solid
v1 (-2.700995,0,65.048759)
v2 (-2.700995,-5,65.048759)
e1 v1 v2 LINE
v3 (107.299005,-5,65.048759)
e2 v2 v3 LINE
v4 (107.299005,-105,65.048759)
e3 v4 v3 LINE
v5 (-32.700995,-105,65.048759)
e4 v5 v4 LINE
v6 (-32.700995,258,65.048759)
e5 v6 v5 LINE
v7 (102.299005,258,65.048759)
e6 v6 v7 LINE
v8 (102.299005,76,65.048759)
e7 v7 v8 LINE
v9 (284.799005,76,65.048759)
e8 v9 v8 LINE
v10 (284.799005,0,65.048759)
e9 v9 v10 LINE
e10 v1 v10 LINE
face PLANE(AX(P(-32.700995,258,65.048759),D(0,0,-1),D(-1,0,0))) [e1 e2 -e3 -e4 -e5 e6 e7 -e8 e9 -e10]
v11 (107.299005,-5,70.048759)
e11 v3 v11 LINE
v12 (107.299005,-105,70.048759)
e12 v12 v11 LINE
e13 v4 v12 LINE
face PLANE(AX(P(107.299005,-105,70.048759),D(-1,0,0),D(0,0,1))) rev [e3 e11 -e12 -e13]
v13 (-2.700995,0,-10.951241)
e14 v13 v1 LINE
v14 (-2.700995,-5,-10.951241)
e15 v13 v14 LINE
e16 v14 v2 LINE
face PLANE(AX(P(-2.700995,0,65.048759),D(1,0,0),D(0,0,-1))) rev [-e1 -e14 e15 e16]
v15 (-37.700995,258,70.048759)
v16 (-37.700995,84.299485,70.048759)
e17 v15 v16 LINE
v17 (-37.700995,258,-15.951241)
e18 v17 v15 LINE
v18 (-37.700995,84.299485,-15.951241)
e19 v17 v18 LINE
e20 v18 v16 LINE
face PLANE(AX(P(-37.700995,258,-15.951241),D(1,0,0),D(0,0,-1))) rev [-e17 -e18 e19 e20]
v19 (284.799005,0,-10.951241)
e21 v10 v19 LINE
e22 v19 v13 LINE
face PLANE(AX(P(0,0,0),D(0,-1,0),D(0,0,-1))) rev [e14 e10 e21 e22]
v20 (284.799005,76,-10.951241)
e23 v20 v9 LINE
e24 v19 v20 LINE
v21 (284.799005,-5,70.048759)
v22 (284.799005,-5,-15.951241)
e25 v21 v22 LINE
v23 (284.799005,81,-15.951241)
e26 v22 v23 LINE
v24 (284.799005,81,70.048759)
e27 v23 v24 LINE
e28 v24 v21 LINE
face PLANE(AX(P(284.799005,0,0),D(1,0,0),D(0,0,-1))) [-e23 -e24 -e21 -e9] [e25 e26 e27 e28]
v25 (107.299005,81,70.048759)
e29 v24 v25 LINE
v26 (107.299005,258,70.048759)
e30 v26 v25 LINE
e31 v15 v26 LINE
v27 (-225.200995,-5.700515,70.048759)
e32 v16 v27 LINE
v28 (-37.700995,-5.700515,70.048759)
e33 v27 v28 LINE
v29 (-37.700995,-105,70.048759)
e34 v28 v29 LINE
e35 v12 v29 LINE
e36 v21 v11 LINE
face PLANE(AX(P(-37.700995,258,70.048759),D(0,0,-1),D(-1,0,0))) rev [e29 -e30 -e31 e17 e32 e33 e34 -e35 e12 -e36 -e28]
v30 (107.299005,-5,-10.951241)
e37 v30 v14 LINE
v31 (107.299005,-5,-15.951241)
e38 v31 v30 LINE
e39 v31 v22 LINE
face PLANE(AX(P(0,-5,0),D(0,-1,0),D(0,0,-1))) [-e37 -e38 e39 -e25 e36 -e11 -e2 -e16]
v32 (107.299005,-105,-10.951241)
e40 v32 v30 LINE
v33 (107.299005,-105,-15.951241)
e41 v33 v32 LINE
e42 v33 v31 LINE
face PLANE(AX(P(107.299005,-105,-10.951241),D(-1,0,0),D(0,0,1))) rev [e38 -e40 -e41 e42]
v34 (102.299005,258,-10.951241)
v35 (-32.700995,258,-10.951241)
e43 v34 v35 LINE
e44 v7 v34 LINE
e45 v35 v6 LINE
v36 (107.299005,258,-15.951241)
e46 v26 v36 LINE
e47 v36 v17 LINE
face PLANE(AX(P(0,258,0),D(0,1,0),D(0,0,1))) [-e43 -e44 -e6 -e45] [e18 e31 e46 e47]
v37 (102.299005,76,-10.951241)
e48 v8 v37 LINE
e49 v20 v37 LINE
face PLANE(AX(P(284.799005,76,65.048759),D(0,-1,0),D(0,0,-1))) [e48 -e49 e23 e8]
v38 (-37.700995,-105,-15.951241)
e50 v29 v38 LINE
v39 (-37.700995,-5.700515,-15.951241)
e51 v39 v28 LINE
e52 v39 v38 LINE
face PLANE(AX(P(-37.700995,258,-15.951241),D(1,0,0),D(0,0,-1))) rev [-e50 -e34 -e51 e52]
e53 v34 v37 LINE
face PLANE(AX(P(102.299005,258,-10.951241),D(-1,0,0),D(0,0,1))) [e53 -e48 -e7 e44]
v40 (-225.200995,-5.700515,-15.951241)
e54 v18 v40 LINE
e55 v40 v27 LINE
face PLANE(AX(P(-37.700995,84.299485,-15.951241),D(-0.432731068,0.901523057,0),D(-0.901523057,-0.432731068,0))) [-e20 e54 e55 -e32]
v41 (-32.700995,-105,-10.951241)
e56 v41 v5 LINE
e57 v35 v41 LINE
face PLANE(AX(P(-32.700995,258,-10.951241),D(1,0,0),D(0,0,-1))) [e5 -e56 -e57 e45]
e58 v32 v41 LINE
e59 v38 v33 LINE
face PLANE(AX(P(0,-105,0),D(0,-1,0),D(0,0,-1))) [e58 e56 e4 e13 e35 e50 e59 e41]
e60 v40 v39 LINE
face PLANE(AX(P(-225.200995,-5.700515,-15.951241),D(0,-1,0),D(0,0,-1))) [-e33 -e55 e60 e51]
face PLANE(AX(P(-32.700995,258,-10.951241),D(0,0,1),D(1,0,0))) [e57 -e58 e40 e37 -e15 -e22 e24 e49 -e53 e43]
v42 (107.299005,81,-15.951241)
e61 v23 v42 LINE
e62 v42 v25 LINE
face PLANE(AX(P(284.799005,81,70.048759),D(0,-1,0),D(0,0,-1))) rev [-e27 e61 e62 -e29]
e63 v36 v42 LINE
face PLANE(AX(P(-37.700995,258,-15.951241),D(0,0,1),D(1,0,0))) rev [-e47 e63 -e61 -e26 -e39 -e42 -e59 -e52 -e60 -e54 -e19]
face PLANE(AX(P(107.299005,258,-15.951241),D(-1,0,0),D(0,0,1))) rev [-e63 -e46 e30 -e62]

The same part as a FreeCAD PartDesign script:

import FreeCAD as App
import Part
import Sketcher
from FreeCAD import Vector

doc = App.newDocument("Part")
body = doc.addObject("PartDesign::Body", "Body")

# Sketch on XZ plane
sketch1 = body.newObject("Sketcher::SketchObject", "Sketch")
sketch1.AttachmentSupport = (doc.getObject("XZ_Plane"), [""])
sketch1.MapMode = "FlatFace"
sketch1.addGeometry([
    Part.LineSegment(Vector(-38, -16, 0), Vector(-38, 70, 0)),  # 0
    Part.LineSegment(Vector(-38, 70, 0), Vector(107, 70, 0)),  # 1
    Part.LineSegment(Vector(107, 70, 0), Vector(107, -16, 0)),  # 2
    Part.LineSegment(Vector(107, -16, 0), Vector(-38, -16, 0)),  # 3
    Part.LineSegment(Vector(102, 65, 0), Vector(-33, 65, 0)),  # 4
    Part.LineSegment(Vector(-33, 65, 0), Vector(-33, -11, 0)),  # 5
    Part.LineSegment(Vector(-33, -11, 0), Vector(102, -11, 0)),  # 6
    Part.LineSegment(Vector(102, -11, 0), Vector(102, 65, 0)),  # 7
], False)
sketch1.addConstraint([
    Sketcher.Constraint("Coincident", 0, 2, 1, 1),
    Sketcher.Constraint("Coincident", 1, 2, 2, 1),
    Sketcher.Constraint("Coincident", 2, 2, 3, 1),
    Sketcher.Constraint("Coincident", 3, 2, 0, 1),
    Sketcher.Constraint("Coincident", 4, 2, 5, 1),
    Sketcher.Constraint("Coincident", 5, 2, 6, 1),
    Sketcher.Constraint("Coincident", 6, 2, 7, 1),
    Sketcher.Constraint("Coincident", 7, 2, 4, 1),
    Sketcher.Constraint("Vertical", 0),
    Sketcher.Constraint("Horizontal", 1),
    Sketcher.Constraint("Vertical", 2),
    Sketcher.Constraint("Horizontal", 3),
    Sketcher.Constraint("Horizontal", 4),
    Sketcher.Constraint("Vertical", 5),
    Sketcher.Constraint("Horizontal", 6),
    Sketcher.Constraint("Vertical", 7),
    Sketcher.Constraint("DistanceX", 1, 1, 1, 2, 145.0),
    Sketcher.Constraint("DistanceX", 4, 2, 4, 1, 135.0),
    Sketcher.Constraint("DistanceY", 0, 1, 0, 2, 86.0),
    Sketcher.Constraint("DistanceY", 5, 2, 5, 1, 76.0),
    Sketcher.Constraint("DistanceX", 0, 2, 4, 2, 5.0),
    Sketcher.Constraint("DistanceY", 4, 2, 0, 2, 5.0),
    Sketcher.Constraint("DistanceY", -1, 1, 0, 2, 70.048759),
    Sketcher.Constraint("DistanceX", 0, 2, -1, 1, 37.700995),
])
pad1 = body.newObject("PartDesign::Pad", "Pad")
pad1.Profile = sketch1
pad1.Length = 258
pad1.Reversed = True

# Sketch on XZ plane
sketch2 = body.newObject("Sketcher::SketchObject", "Sketch001")
sketch2.AttachmentSupport = (doc.getObject("XZ_Plane"), [""])
sketch2.MapMode = "FlatFace"
sketch2.addGeometry([
    Part.LineSegment(Vector(-38, 70, 0), Vector(-38, -16, 0)),
    Part.LineSegment(Vector(-38, -16, 0), Vector(107, -16, 0)),
    Part.LineSegment(Vector(107, -16, 0), Vector(107, 70, 0)),
    Part.LineSegment(Vector(107, 70, 0), Vector(-38, 70, 0)),
], False)
sketch2.addConstraint([
    Sketcher.Constraint("Coincident", 0, 2, 1, 1),
    Sketcher.Constraint("Coincident", 1, 2, 2, 1),
    Sketcher.Constraint("Coincident", 2, 2, 3, 1),
    Sketcher.Constraint("Coincident", 3, 2, 0, 1),
    Sketcher.Constraint("Vertical", 0),
    Sketcher.Constraint("Horizontal", 1),
    Sketcher.Constraint("Vertical", 2),
    Sketcher.Constraint("Horizontal", 3),
    Sketcher.Constraint("DistanceX", 1, 1, 1, 2, 145.0),
    Sketcher.Constraint("DistanceY", 0, 2, 0, 1, 86.0),
    Sketcher.Constraint("DistanceY", 0, 2, -1, 1, 15.951241),
    Sketcher.Constraint("DistanceX", 0, 2, -1, 1, 37.700995),
])
pad2 = body.newObject("PartDesign::Pad", "Pad001")
pad2.Profile = sketch2
pad2.Length = 5

# Sketch on XZ plane
sketch3 = body.newObject("Sketcher::SketchObject", "Sketch002")
sketch3.AttachmentSupport = (doc.getObject("XZ_Plane"), [""])
sketch3.MapMode = "FlatFace"
sketch3.AttachmentOffset = App.Placement(Vector(0, 0, 5), App.Rotation())
sketch3.addGeometry([
    Part.LineSegment(Vector(-33, 65, 0), Vector(-33, -11, 0)),
    Part.LineSegment(Vector(-33, -11, 0), Vector(-3, -11, 0)),
    Part.LineSegment(Vector(-3, -11, 0), Vector(-3, 65, 0)),
    Part.LineSegment(Vector(-3, 65, 0), Vector(-33, 65, 0)),
], False)
sketch3.addConstraint([
    Sketcher.Constraint("Coincident", 0, 2, 1, 1),
    Sketcher.Constraint("Coincident", 1, 2, 2, 1),
    Sketcher.Constraint("Coincident", 2, 2, 3, 1),
    Sketcher.Constraint("Coincident", 3, 2, 0, 1),
    Sketcher.Constraint("Vertical", 0),
    Sketcher.Constraint("Horizontal", 1),
    Sketcher.Constraint("Vertical", 2),
    Sketcher.Constraint("Horizontal", 3),
    Sketcher.Constraint("DistanceX", 1, 1, 1, 2, 30.0),
    Sketcher.Constraint("DistanceY", 0, 2, 0, 1, 76.0),
    Sketcher.Constraint("DistanceY", 0, 2, -1, 1, 10.951241),
    Sketcher.Constraint("DistanceX", 0, 2, -1, 1, 32.700995),
])
pocket1 = body.newObject("PartDesign::Pocket", "Pocket")
pocket1.Profile = sketch3
pocket1.Length = 5

# Sketch on XZ plane
sketch4 = body.newObject("Sketcher::SketchObject", "Sketch003")
sketch4.AttachmentSupport = (doc.getObject("XZ_Plane"), [""])
sketch4.MapMode = "FlatFace"
sketch4.AttachmentOffset = App.Placement(Vector(0, 0, 5), App.Rotation())
sketch4.addGeometry([
    Part.LineSegment(Vector(-38, 70, 0), Vector(-38, -16, 0)),
    Part.LineSegment(Vector(-38, -16, 0), Vector(-33, -16, 0)),
    Part.LineSegment(Vector(-33, -16, 0), Vector(-33, 70, 0)),
    Part.LineSegment(Vector(-33, 70, 0), Vector(-38, 70, 0)),
], False)
sketch4.addConstraint([
    Sketcher.Constraint("Coincident", 0, 2, 1, 1),
    Sketcher.Constraint("Coincident", 1, 2, 2, 1),
    Sketcher.Constraint("Coincident", 2, 2, 3, 1),
    Sketcher.Constraint("Coincident", 3, 2, 0, 1),
    Sketcher.Constraint("Vertical", 0),
    Sketcher.Constraint("Horizontal", 1),
    Sketcher.Constraint("Vertical", 2),
    Sketcher.Constraint("Horizontal", 3),
    Sketcher.Constraint("DistanceX", 1, 1, 1, 2, 5.0),
    Sketcher.Constraint("DistanceY", 0, 2, 0, 1, 86.0),
    Sketcher.Constraint("DistanceY", 0, 2, -1, 1, 15.951241),
    Sketcher.Constraint("DistanceX", 0, 2, -1, 1, 37.700995),
])
pad3 = body.newObject("PartDesign::Pad", "Pad002")
pad3.Profile = sketch4
pad3.Length = 100

# Sketch on XY plane
sketch5 = body.newObject("Sketcher::SketchObject", "Sketch004")
sketch5.AttachmentSupport = (doc.getObject("XY_Plane"), [""])
sketch5.MapMode = "FlatFace"
sketch5.AttachmentOffset = App.Placement(Vector(0, 0, 70.048759), App.Rotation())
sketch5.addGeometry([
    Part.LineSegment(Vector(-38, -6, 0), Vector(-38, 84, 0)),
    Part.LineSegment(Vector(-38, 84, 0), Vector(-225, -6, 0)),
    Part.LineSegment(Vector(-225, -6, 0), Vector(-38, -6, 0)),
], False)
sketch5.addConstraint([
    Sketcher.Constraint("Coincident", 0, 2, 1, 1),
    Sketcher.Constraint("Coincident", 1, 2, 2, 1),
    Sketcher.Constraint("Coincident", 2, 2, 0, 1),
    Sketcher.Constraint("Vertical", 0),
    Sketcher.Constraint("Horizontal", 2),
    Sketcher.Constraint("DistanceY", 0, 1, 0, 2, 90.0),
    Sketcher.Constraint("DistanceX", 2, 1, 2, 2, 187.5),
    Sketcher.Constraint("DistanceX", 0, 2, -1, 1, 37.700995),
    Sketcher.Constraint("DistanceY", -1, 1, 0, 2, 84.299485),
])
pad4 = body.newObject("PartDesign::Pad", "Pad003")
pad4.Profile = sketch5
pad4.Length = 86
pad4.Reversed = True

# Sketch on YZ plane
sketch6 = body.newObject("Sketcher::SketchObject", "Sketch005")
sketch6.AttachmentSupport = (doc.getObject("YZ_Plane"), [""])
sketch6.MapMode = "FlatFace"
sketch6.AttachmentOffset = App.Placement(Vector(0, 0, 107.299005), App.Rotation())
sketch6.addGeometry([
    Part.LineSegment(Vector(81, 70, 0), Vector(-5, 70, 0)),  # 0
    Part.LineSegment(Vector(-5, 70, 0), Vector(-5, -16, 0)),  # 1
    Part.LineSegment(Vector(-5, -16, 0), Vector(81, -16, 0)),  # 2
    Part.LineSegment(Vector(81, -16, 0), Vector(81, 70, 0)),  # 3
    Part.LineSegment(Vector(0, -11, 0), Vector(0, 65, 0)),  # 4
    Part.LineSegment(Vector(0, 65, 0), Vector(76, 65, 0)),  # 5
    Part.LineSegment(Vector(76, 65, 0), Vector(76, -11, 0)),  # 6
    Part.LineSegment(Vector(76, -11, 0), Vector(0, -11, 0)),  # 7
], False)
sketch6.addConstraint([
    Sketcher.Constraint("Coincident", 0, 2, 1, 1),
    Sketcher.Constraint("Coincident", 1, 2, 2, 1),
    Sketcher.Constraint("Coincident", 2, 2, 3, 1),
    Sketcher.Constraint("Coincident", 3, 2, 0, 1),
    Sketcher.Constraint("Coincident", 4, 2, 5, 1),
    Sketcher.Constraint("Coincident", 5, 2, 6, 1),
    Sketcher.Constraint("Coincident", 6, 2, 7, 1),
    Sketcher.Constraint("Coincident", 7, 2, 4, 1),
    Sketcher.Constraint("Horizontal", 0),
    Sketcher.Constraint("Vertical", 1),
    Sketcher.Constraint("Horizontal", 2),
    Sketcher.Constraint("Vertical", 3),
    Sketcher.Constraint("Vertical", 4),
    Sketcher.Constraint("Horizontal", 5),
    Sketcher.Constraint("Vertical", 6),
    Sketcher.Constraint("Horizontal", 7),
    Sketcher.Constraint("PointOnObject", 4, 2, -2),
    Sketcher.Constraint("Equal", 2, 1),
    Sketcher.Constraint("Equal", 7, 4),
    Sketcher.Constraint("DistanceX", 0, 2, 0, 1, 86.0),
    Sketcher.Constraint("DistanceX", 5, 1, 5, 2, 76.0),
    Sketcher.Constraint("DistanceX", 0, 2, -1, 1, 5.0),
    Sketcher.Constraint("DistanceY", 4, 2, 0, 2, 5.0),
    Sketcher.Constraint("DistanceY", -1, 1, 0, 2, 70.048759),
])
pad5 = body.newObject("PartDesign::Pad", "Pad004")
pad5.Profile = sketch6
pad5.Length = 177.5

# Sketch on YZ plane
sketch7 = body.newObject("Sketcher::SketchObject", "Sketch006")
sketch7.AttachmentSupport = (doc.getObject("YZ_Plane"), [""])
sketch7.MapMode = "FlatFace"
sketch7.AttachmentOffset = App.Placement(Vector(0, 0, 107.299005), App.Rotation())
sketch7.addGeometry([
    Part.LineSegment(Vector(76, 65, 0), Vector(0, 65, 0)),
    Part.LineSegment(Vector(0, 65, 0), Vector(0, -11, 0)),
    Part.LineSegment(Vector(0, -11, 0), Vector(76, -11, 0)),
    Part.LineSegment(Vector(76, -11, 0), Vector(76, 65, 0)),
], False)
sketch7.addConstraint([
    Sketcher.Constraint("Coincident", 0, 2, 1, 1),
    Sketcher.Constraint("Coincident", 1, 2, 2, 1),
    Sketcher.Constraint("Coincident", 2, 2, 3, 1),
    Sketcher.Constraint("Coincident", 3, 2, 0, 1),
    Sketcher.Constraint("Horizontal", 0),
    Sketcher.Constraint("Vertical", 1),
    Sketcher.Constraint("Horizontal", 2),
    Sketcher.Constraint("Vertical", 3),
    Sketcher.Constraint("PointOnObject", 0, 2, -2),
    Sketcher.Constraint("Equal", 2, 1),
    Sketcher.Constraint("DistanceX", 0, 2, 0, 1, 76.0),
    Sketcher.Constraint("DistanceY", -1, 1, 0, 2, 65.048759),
])
pocket2 = body.newObject("PartDesign::Pocket", "Pocket001")
pocket2.Profile = sketch7
pocket2.Length = 10

# Sketch on XZ plane
sketch8 = body.newObject("Sketcher::SketchObject", "Sketch007")
sketch8.AttachmentSupport = (doc.getObject("XZ_Plane"), [""])
sketch8.MapMode = "FlatFace"
sketch8.AttachmentOffset = App.Placement(Vector(0, 0, 5), App.Rotation())
sketch8.addGeometry([
    Part.LineSegment(Vector(-33, 70, 0), Vector(-33, 65, 0)),  # 0
    Part.LineSegment(Vector(-33, 65, 0), Vector(107, 65, 0)),  # 1
    Part.LineSegment(Vector(107, 65, 0), Vector(107, 70, 0)),  # 2
    Part.LineSegment(Vector(107, 70, 0), Vector(-33, 70, 0)),  # 3
    Part.LineSegment(Vector(-33, -11, 0), Vector(-33, -16, 0)),  # 4
    Part.LineSegment(Vector(-33, -16, 0), Vector(107, -16, 0)),  # 5
    Part.LineSegment(Vector(107, -16, 0), Vector(107, -11, 0)),  # 6
    Part.LineSegment(Vector(107, -11, 0), Vector(-33, -11, 0)),  # 7
], False)
sketch8.addConstraint([
    Sketcher.Constraint("Coincident", 0, 2, 1, 1),
    Sketcher.Constraint("Coincident", 1, 2, 2, 1),
    Sketcher.Constraint("Coincident", 2, 2, 3, 1),
    Sketcher.Constraint("Coincident", 3, 2, 0, 1),
    Sketcher.Constraint("Coincident", 4, 2, 5, 1),
    Sketcher.Constraint("Coincident", 5, 2, 6, 1),
    Sketcher.Constraint("Coincident", 6, 2, 7, 1),
    Sketcher.Constraint("Coincident", 7, 2, 4, 1),
    Sketcher.Constraint("Vertical", 0),
    Sketcher.Constraint("Horizontal", 1),
    Sketcher.Constraint("Vertical", 2),
    Sketcher.Constraint("Horizontal", 3),
    Sketcher.Constraint("Vertical", 4),
    Sketcher.Constraint("Horizontal", 5),
    Sketcher.Constraint("Vertical", 6),
    Sketcher.Constraint("Horizontal", 7),
    Sketcher.Constraint("Vertical", 3, 2, 4, 2),
    Sketcher.Constraint("Vertical", 2, 2, 5, 2),
    Sketcher.Constraint("Equal", 2, 4),
    Sketcher.Constraint("DistanceX", 1, 1, 1, 2, 140.0),
    Sketcher.Constraint("DistanceY", 0, 2, 0, 1, 5.0),
    Sketcher.Constraint("DistanceY", 4, 2, 0, 2, 81.0),
    Sketcher.Constraint("DistanceY", -1, 1, 0, 2, 65.048759),
    Sketcher.Constraint("DistanceX", 0, 2, -1, 1, 32.700995),
])
pad6 = body.newObject("PartDesign::Pad", "Pad005")
pad6.Profile = sketch8
pad6.Length = 100

doc.recompute()
